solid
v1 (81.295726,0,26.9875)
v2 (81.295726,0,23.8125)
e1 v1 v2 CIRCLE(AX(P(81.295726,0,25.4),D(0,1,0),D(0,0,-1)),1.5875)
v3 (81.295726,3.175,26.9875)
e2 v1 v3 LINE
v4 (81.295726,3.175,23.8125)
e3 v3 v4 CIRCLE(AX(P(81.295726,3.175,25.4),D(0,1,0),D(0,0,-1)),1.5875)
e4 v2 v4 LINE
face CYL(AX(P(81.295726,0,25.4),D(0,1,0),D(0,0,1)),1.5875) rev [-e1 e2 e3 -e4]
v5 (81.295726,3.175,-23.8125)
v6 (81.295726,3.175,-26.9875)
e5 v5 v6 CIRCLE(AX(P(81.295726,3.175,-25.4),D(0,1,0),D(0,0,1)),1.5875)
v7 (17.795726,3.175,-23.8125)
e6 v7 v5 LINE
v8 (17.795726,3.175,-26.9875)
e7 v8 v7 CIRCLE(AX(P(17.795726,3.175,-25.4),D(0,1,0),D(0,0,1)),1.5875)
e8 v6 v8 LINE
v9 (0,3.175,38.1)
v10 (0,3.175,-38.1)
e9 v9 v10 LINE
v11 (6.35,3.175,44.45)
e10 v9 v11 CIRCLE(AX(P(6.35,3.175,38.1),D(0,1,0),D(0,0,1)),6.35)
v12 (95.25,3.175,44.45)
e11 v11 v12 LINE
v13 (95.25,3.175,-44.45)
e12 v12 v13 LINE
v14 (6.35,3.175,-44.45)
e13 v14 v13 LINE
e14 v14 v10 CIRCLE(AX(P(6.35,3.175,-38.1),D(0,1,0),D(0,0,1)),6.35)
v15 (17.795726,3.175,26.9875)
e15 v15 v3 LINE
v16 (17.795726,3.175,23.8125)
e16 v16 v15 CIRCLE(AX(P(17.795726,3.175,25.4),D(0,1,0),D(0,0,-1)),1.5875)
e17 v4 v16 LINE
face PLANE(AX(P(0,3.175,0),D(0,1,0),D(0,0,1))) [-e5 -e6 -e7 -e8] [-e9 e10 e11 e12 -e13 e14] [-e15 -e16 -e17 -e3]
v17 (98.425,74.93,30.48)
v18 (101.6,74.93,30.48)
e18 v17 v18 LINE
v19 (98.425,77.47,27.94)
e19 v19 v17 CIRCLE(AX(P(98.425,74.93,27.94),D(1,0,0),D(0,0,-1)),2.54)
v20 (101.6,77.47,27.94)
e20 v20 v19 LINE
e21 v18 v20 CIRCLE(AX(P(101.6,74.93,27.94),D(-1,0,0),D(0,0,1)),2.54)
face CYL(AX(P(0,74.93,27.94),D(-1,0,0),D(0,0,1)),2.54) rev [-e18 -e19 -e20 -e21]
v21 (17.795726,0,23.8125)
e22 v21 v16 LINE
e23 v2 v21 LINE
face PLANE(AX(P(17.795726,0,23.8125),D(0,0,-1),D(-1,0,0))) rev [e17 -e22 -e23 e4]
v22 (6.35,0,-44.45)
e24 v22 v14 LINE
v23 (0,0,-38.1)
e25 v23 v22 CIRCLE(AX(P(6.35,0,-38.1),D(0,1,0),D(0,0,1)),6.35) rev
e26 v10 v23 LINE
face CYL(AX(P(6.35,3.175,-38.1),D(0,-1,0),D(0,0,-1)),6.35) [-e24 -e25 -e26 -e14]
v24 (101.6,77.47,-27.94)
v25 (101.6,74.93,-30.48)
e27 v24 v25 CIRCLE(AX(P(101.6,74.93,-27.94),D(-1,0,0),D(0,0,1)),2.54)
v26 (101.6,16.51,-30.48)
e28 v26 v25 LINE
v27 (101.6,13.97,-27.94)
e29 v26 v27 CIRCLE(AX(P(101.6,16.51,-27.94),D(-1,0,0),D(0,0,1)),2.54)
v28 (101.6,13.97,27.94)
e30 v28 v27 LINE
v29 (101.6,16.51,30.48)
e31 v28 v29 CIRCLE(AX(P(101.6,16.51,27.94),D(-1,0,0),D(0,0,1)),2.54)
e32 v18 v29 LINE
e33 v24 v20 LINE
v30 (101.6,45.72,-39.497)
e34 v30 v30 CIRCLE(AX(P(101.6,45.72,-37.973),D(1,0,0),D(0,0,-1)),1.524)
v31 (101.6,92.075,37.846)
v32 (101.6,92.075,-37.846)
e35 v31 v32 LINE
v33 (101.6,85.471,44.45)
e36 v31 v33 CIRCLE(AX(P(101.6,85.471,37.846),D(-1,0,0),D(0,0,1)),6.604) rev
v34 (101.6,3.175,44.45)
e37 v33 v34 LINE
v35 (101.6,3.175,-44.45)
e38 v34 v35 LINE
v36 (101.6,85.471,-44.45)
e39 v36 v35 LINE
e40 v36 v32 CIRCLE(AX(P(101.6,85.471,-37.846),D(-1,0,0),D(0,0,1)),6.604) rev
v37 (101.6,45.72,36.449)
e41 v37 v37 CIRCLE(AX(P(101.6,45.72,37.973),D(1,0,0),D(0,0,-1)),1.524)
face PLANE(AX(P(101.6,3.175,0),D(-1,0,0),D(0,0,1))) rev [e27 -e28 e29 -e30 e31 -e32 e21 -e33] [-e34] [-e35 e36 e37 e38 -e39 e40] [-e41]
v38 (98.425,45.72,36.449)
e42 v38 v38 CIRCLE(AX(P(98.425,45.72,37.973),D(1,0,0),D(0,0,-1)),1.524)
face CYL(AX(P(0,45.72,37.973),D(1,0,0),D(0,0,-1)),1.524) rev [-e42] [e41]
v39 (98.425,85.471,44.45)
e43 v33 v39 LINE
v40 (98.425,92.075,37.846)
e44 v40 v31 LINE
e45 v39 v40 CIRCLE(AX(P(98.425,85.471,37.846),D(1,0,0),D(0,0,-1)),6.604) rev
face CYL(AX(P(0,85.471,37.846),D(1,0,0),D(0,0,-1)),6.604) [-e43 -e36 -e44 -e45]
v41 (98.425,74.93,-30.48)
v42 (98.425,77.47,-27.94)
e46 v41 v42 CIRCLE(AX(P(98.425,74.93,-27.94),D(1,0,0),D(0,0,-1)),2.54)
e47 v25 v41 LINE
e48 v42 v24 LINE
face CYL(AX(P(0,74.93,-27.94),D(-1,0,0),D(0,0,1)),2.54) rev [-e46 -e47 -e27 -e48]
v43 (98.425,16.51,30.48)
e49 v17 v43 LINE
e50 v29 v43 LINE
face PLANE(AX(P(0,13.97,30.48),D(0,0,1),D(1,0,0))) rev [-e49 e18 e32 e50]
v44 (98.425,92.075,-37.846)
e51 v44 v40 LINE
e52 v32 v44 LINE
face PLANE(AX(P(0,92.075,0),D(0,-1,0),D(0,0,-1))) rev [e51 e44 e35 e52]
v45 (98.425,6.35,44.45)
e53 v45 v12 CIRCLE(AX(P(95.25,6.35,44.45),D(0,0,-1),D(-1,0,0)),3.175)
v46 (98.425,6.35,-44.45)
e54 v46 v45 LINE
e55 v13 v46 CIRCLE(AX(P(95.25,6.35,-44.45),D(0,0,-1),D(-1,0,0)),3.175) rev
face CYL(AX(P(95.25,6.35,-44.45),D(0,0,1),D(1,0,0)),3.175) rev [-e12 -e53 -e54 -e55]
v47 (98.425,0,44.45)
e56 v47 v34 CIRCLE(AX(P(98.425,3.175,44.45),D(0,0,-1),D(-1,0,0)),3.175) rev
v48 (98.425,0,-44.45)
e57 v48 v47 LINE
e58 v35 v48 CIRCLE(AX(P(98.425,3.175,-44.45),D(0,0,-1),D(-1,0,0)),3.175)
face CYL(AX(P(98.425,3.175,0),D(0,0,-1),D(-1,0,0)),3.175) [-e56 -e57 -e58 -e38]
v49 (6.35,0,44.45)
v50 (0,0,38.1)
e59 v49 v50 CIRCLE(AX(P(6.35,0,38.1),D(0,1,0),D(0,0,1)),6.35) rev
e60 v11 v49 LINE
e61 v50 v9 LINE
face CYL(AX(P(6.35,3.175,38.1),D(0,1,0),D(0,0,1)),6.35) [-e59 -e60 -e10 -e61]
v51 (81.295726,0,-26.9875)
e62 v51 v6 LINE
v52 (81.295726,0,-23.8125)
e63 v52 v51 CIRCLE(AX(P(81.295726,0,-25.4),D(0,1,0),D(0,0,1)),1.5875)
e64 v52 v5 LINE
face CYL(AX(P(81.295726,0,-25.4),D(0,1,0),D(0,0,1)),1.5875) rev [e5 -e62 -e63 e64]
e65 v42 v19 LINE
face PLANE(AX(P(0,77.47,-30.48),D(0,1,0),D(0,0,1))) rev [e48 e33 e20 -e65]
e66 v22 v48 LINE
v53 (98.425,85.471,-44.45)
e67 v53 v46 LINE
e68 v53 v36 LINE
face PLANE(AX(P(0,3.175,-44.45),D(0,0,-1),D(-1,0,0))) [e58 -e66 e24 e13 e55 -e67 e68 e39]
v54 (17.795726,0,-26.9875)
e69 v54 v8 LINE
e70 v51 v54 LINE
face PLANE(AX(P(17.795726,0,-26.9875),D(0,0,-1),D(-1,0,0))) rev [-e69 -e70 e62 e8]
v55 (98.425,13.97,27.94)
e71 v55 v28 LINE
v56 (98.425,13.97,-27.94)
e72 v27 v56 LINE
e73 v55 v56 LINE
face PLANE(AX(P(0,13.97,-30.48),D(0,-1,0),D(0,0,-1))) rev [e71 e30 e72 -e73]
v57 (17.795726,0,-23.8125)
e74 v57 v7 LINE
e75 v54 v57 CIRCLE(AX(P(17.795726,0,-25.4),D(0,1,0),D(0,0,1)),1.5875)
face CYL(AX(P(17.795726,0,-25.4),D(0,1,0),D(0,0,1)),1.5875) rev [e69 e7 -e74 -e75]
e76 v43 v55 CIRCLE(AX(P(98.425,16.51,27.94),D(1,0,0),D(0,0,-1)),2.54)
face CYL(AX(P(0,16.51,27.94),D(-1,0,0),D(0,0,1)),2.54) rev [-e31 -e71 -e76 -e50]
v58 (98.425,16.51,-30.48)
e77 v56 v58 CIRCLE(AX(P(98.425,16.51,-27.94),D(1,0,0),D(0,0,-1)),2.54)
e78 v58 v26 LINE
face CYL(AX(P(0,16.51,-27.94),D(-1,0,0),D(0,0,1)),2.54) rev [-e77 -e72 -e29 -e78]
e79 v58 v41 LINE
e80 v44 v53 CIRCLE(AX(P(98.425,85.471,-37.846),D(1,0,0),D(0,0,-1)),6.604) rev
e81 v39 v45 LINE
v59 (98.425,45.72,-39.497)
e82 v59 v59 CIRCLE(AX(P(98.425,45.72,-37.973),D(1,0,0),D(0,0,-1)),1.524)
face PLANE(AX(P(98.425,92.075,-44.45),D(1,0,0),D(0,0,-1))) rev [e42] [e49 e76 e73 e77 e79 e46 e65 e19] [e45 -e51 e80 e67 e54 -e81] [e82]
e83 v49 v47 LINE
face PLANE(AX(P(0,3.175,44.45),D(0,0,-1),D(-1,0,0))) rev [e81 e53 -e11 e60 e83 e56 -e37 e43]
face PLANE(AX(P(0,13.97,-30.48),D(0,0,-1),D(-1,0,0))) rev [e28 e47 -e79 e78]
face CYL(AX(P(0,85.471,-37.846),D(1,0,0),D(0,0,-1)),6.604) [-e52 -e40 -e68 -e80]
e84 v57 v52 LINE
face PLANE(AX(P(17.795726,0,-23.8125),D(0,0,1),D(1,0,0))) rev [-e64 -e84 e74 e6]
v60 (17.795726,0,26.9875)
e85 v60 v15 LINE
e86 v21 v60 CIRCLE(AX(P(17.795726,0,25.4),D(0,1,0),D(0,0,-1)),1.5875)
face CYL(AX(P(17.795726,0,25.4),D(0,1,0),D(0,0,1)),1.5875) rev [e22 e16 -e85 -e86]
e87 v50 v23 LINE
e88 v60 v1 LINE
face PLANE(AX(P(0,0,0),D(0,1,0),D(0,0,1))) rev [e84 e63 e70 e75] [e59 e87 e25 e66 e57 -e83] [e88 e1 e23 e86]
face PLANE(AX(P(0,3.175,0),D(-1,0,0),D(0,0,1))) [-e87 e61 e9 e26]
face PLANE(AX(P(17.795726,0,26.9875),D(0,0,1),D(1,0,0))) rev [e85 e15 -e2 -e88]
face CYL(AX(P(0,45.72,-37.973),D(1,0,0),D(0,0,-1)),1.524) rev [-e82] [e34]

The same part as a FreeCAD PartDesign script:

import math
import FreeCAD as App
import Part
import Sketcher
Q = App.Units.Quantity


def edges_at(feature, points):
    """Names of the edges that pass closest to the given points."""
    edges = feature.Shape.Edges
    near = lambda p: min(range(len(edges)), key=lambda i: edges[i].distToShape(Part.Vertex(*p))[0])
    return sorted({f"Edge{near(p) + 1}" for p in points})

doc = App.newDocument("Part")
body = doc.addObject("PartDesign::Body", "Body")

sketch1 = body.newObject("Sketcher::SketchObject", "Sketch")
sketch1.AttachmentSupport = (doc.getObject("XZ_Plane"), [""])
sketch1.MapMode = "FlatFace"
sketch1.addGeometry(Part.LineSegment(App.Vector(0, -44.45, 0), App.Vector(0, 44.45, 0)), False)
sketch1.addGeometry(Part.LineSegment(App.Vector(0, 44.45, 0), App.Vector(101.6, 44.45, 0)), False)
sketch1.addGeometry(Part.LineSegment(App.Vector(101.6, 44.45, 0), App.Vector(101.6, -44.45, 0)), False)
sketch1.addGeometry(Part.LineSegment(App.Vector(101.6, -44.45, 0), App.Vector(0, -44.45, 0)), False)
sketch1.addConstraint(Sketcher.Constraint("Coincident", 0, 2, 1, 1))
sketch1.addConstraint(Sketcher.Constraint("Coincident", 1, 2, 2, 1))
sketch1.addConstraint(Sketcher.Constraint("Coincident", 2, 2, 3, 1))
sketch1.addConstraint(Sketcher.Constraint("Coincident", 3, 2, 0, 1))
sketch1.addConstraint(Sketcher.Constraint("Vertical", 0))
sketch1.addConstraint(Sketcher.Constraint("Horizontal", 1))
sketch1.addConstraint(Sketcher.Constraint("Vertical", 2))
sketch1.addConstraint(Sketcher.Constraint("Horizontal", 3))
sketch1.addConstraint(Sketcher.Constraint("Symmetric", 0, 2, 3, 2, -1, 1))
sketch1.addConstraint(Sketcher.Constraint("DistanceX", 1, 1, 1, 2, Q("4 in")))
sketch1.addConstraint(Sketcher.Constraint("DistanceY", 0, 1, 0, 2, Q("3.5 in")))
pad1 = body.newObject("PartDesign::Pad", "Pad")
pad1.Profile = sketch1
pad1.Length = Q("0.125 in")
pad1.Reversed = True

sketch2 = body.newObject("Sketcher::SketchObject", "Sketch001")
sketch2.AttachmentSupport = (doc.getObject("XZ_Plane"), [""])
sketch2.MapMode = "FlatFace"
sketch2.AttachmentOffset = App.Placement(App.Vector(0, 0, -0.125 * 25.4), App.Rotation())
sketch2.addGeometry(Part.LineSegment(App.Vector(98.425, -44.45, 0), App.Vector(98.425, 44.45, 0)), False)
sketch2.addGeometry(Part.LineSegment(App.Vector(98.425, 44.45, 0), App.Vector(101.6, 44.45, 0)), False)
sketch2.addGeometry(Part.LineSegment(App.Vector(101.6, 44.45, 0), App.Vector(101.6, -44.45, 0)), False)
sketch2.addGeometry(Part.LineSegment(App.Vector(101.6, -44.45, 0), App.Vector(98.425, -44.45, 0)), False)
sketch2.addConstraint(Sketcher.Constraint("Coincident", 0, 2, 1, 1))
sketch2.addConstraint(Sketcher.Constraint("Coincident", 1, 2, 2, 1))
sketch2.addConstraint(Sketcher.Constraint("Coincident", 2, 2, 3, 1))
sketch2.addConstraint(Sketcher.Constraint("Coincident", 3, 2, 0, 1))
sketch2.addConstraint(Sketcher.Constraint("Vertical", 0))
sketch2.addConstraint(Sketcher.Constraint("Horizontal", 1))
sketch2.addConstraint(Sketcher.Constraint("Vertical", 2))
sketch2.addConstraint(Sketcher.Constraint("Horizontal", 3))
sketch2.addConstraint(Sketcher.Constraint("DistanceY", 0, 1, 0, 2, Q("3.5 in")))
sketch2.addConstraint(Sketcher.Constraint("DistanceX", -1, 1, 1, 2, Q("4 in")))
sketch2.addConstraint(Sketcher.Constraint("DistanceX", 1, 1, 1, 2, Q("0.125 in")))
sketch2.addConstraint(Sketcher.Constraint("DistanceY", -1, 1, 0, 2, Q("1.75 in")))
pad2 = body.newObject("PartDesign::Pad", "Pad001")
pad2.Profile = sketch2
pad2.Length = Q("3.5 in")
pad2.Reversed = True

sketch3 = body.newObject("Sketcher::SketchObject", "Sketch002")
sketch3.AttachmentSupport = (doc.getObject("YZ_Plane"), [""])
sketch3.MapMode = "FlatFace"
sketch3.AttachmentOffset = App.Placement(App.Vector(0, 0, 4 * 25.4), App.Rotation())
sketch3.addGeometry(Part.Circle(App.Vector(45.72, 37.973, 0), App.Vector(0, 0, 1), 1.524), False)
sketch3.addGeometry(Part.Circle(App.Vector(45.72, -37.973, 0), App.Vector(0, 0, 1), 1.524), False)
sketch3.addGeometry(Part.LineSegment(App.Vector(77.47, 30.48, 0), App.Vector(13.97, 30.48, 0)), False)
sketch3.addGeometry(Part.LineSegment(App.Vector(13.97, 30.48, 0), App.Vector(13.97, -30.48, 0)), False)
sketch3.addGeometry(Part.LineSegment(App.Vector(13.97, -30.48, 0), App.Vector(77.47, -30.48, 0)), False)
sketch3.addGeometry(Part.LineSegment(App.Vector(77.47, -30.48, 0), App.Vector(77.47, 30.48, 0)), False)
sketch3.addConstraint(Sketcher.Constraint("Coincident", 2, 2, 3, 1))
sketch3.addConstraint(Sketcher.Constraint("Coincident", 3, 2, 4, 1))
sketch3.addConstraint(Sketcher.Constraint("Coincident", 4, 2, 5, 1))
sketch3.addConstraint(Sketcher.Constraint("Coincident", 5, 2, 2, 1))
sketch3.addConstraint(Sketcher.Constraint("Horizontal", 2))
sketch3.addConstraint(Sketcher.Constraint("Vertical", 3))
sketch3.addConstraint(Sketcher.Constraint("Horizontal", 4))
sketch3.addConstraint(Sketcher.Constraint("Vertical", 5))
sketch3.addConstraint(Sketcher.Constraint("Equal", 0, 1))
sketch3.addConstraint(Sketcher.Constraint("Symmetric", 0, 3, 1, 3, -1))
sketch3.addConstraint(Sketcher.Constraint("Diameter", 0, Q("0.12 in")))
sketch3.addConstraint(Sketcher.Constraint("DistanceX", 2, 2, 2, 1, Q("2.5 in")))
sketch3.addConstraint(Sketcher.Constraint("DistanceY", 3, 2, 3, 1, Q("2.4 in")))
sketch3.addConstraint(Sketcher.Constraint("DistanceX", -1, 1, 0, 3, Q("1.8 in")))
sketch3.addConstraint(Sketcher.Constraint("DistanceY", -1, 1, 2, 2, Q("1.2 in")))
sketch3.addConstraint(Sketcher.Constraint("DistanceX", -1, 1, 2, 2, Q("0.55 in")))
sketch3.addConstraint(Sketcher.Constraint("DistanceY", 1, 3, 0, 3, Q("2.99 in")))
pocket1 = body.newObject("PartDesign::Pocket", "Pocket")
pocket1.Profile = sketch3
pocket1.Type = "ThroughAll"
doc.recompute()

fillet = body.newObject("PartDesign::Fillet", "Fillet")
fillet.Base = (pocket1, edges_at(pocket1, [
    (100.013, 13.97, 30.48),
    (100.013, 77.47, 30.48),
    (100.013, 77.47, -30.48),
    (100.013, 13.97, -30.48),
]))
fillet.Radius = Q("0.1 in")
doc.recompute()

fillet2 = body.newObject("PartDesign::Fillet", "Fillet001")
fillet2.Base = (fillet, edges_at(fillet, [(100.013, 92.075, -44.45), (100.013, 92.075, 44.45)]))
fillet2.Radius = Q("0.26 in")
doc.recompute()

fillet3 = body.newObject("PartDesign::Fillet", "Fillet002")
fillet3.Base = (fillet2, edges_at(fillet2, [(98.425, 3.175, 0), (101.6, 0, 0)]))
fillet3.Radius = Q("0.125 in")
doc.recompute()

fillet4 = body.newObject("PartDesign::Fillet", "Fillet003")
fillet4.Base = (fillet3, edges_at(fillet3, [(0, 1.587, -44.45), (0, 1.587, 44.45)]))
fillet4.Radius = Q("0.25 in")

sketch4 = body.newObject("Sketcher::SketchObject", "Sketch003")
sketch4.AttachmentSupport = (doc.getObject("XZ_Plane"), [""])
sketch4.MapMode = "FlatFace"
sketch4.AttachmentOffset = App.Placement(App.Vector(0, 0, -0.125 * 25.4), App.Rotation())
sketch4.addGeometry(Part.LineSegment(App.Vector(81.295726, -26.9875, 0), App.Vector(17.795726, -26.9875, 0)), False)
sketch4.addGeometry(Part.ArcOfCircle(Part.Circle(App.Vector(17.795726, -25.4, 0), App.Vector(0, 0, 1), 1.5875), math.radians(90), math.radians(270)), False)
sketch4.addGeometry(Part.LineSegment(App.Vector(17.795726, -23.8125, 0), App.Vector(81.295726, -23.8125, 0)), False)
sketch4.addGeometry(Part.ArcOfCircle(Part.Circle(App.Vector(81.295726, -25.4, 0), App.Vector(0, 0, 1), 1.5875), math.radians(-90), math.radians(90)), False)
sketch4.addGeometry(Part.LineSegment(App.Vector(17.795726, 26.9875, 0), App.Vector(81.295726, 26.9875, 0)), False)
sketch4.addGeometry(Part.ArcOfCircle(Part.Circle(App.Vector(81.295726, 25.4, 0), App.Vector(0, 0, 1), 1.5875), math.radians(-90), math.radians(90)), False)
sketch4.addGeometry(Part.LineSegment(App.Vector(81.295726, 23.8125, 0), App.Vector(17.795726, 23.8125, 0)), False)
sketch4.addGeometry(Part.ArcOfCircle(Part.Circle(App.Vector(17.795726, 25.4, 0), App.Vector(0, 0, 1), 1.5875), math.radians(90), math.radians(270)), False)
sketch4.addConstraint(Sketcher.Constraint("Tangent", 0, 2, 1, 2))
sketch4.addConstraint(Sketcher.Constraint("Tangent", 1, 1, 2, 1))
sketch4.addConstraint(Sketcher.Constraint("Tangent", 2, 2, 3, 2))
sketch4.addConstraint(Sketcher.Constraint("Tangent", 3, 1, 0, 1))
sketch4.addConstraint(Sketcher.Constraint("Tangent", 4, 2, 5, 2))
sketch4.addConstraint(Sketcher.Constraint("Tangent", 5, 1, 6, 1))
sketch4.addConstraint(Sketcher.Constraint("Tangent", 6, 2, 7, 2))
sketch4.addConstraint(Sketcher.Constraint("Tangent", 7, 1, 4, 1))
sketch4.addConstraint(Sketcher.Constraint("Horizontal", 0))
sketch4.addConstraint(Sketcher.Constraint("Horizontal", 2))
sketch4.addConstraint(Sketcher.Constraint("Horizontal", 4))
sketch4.addConstraint(Sketcher.Constraint("Horizontal", 6))
sketch4.addConstraint(Sketcher.Constraint("Equal", 3, 5))
sketch4.addConstraint(Sketcher.Constraint("Symmetric", 3, 3, 5, 3, -1))
sketch4.addConstraint(Sketcher.Constraint("Vertical", 1, 3, 7, 3))
sketch4.addConstraint(Sketcher.Constraint("DistanceX", 0, 2, 0, 1, Q("2.5 in")))
sketch4.addConstraint(Sketcher.Constraint("DistanceY", 1, 3, -1, 1, Q("1 in")))
sketch4.addConstraint(Sketcher.Constraint("Radius", 1, Q("0.0625 in")))
sketch4.addConstraint(Sketcher.Constraint("DistanceX", -1, 1, 1, 3, Q("17.795726 mm")))
pocket2 = body.newObject("PartDesign::Pocket", "Pocket001")
pocket2.Profile = sketch4
pocket2.Type = "ThroughAll"
pocket2.Reversed = True

doc.recompute()
